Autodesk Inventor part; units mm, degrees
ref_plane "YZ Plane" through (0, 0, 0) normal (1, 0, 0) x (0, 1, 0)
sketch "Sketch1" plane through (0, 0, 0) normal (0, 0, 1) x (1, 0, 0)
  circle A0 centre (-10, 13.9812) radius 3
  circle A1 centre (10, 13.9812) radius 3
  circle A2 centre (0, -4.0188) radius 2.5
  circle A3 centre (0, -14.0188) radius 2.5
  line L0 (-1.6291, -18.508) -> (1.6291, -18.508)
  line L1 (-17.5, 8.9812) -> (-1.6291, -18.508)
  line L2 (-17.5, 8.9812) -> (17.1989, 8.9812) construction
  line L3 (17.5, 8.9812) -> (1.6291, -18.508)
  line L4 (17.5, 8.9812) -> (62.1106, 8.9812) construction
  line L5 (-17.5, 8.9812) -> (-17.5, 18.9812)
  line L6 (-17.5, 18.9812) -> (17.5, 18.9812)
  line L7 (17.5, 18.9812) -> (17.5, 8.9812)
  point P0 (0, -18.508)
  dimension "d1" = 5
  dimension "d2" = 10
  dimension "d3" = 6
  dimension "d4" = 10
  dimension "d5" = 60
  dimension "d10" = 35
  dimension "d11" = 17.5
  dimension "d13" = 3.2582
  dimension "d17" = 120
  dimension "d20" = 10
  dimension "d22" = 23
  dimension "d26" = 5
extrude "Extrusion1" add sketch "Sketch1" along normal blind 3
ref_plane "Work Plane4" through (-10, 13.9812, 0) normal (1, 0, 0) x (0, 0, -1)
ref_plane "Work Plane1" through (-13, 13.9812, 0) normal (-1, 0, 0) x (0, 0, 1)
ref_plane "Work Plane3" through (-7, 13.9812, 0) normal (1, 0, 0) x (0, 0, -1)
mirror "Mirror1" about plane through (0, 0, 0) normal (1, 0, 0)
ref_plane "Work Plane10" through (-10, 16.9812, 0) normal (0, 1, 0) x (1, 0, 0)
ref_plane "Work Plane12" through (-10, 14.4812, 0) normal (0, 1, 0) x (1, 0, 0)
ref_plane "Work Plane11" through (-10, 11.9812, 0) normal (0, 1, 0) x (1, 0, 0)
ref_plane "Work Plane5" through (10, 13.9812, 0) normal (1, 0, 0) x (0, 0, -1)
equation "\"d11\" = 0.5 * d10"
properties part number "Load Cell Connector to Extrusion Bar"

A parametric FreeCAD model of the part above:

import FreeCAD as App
import Part
import Sketcher
Q = App.Units.Quantity


def add_polygon(sketch, points):
    """Adds a closed chain of lines whose ends are joined by coincident constraints."""
    first, n = sketch.GeometryCount, len(points)
    for a, b in zip(points, points[1:] + points[:1]):
        sketch.addGeometry(Part.LineSegment(App.Vector(*a, 0), App.Vector(*b, 0)), False)
    for i in range(n):
        sketch.addConstraint(Sketcher.Constraint("Coincident", first + i, 2, first + (i + 1) % n, 1))

doc = App.newDocument("Part")
body = doc.addObject("PartDesign::Body", "Body")

sketch1 = doc.addObject("Sketcher::SketchObject", "Sketch")
body.addObject(sketch1)
sketch1.AttachmentSupport = (doc.XY_Plane, [""])
sketch1.MapMode = "FlatFace"
add_polygon(sketch1, [(-17.5, 8.9812), (-1.6291, -18.508), (1.6291, -18.508), (17.5, 8.9812), (17.5, 18.9812), (-17.5, 18.9812)])
sketch1.addGeometry(Part.Circle(App.Vector(0, -14.0188, 0), App.Vector(0, 0, 1), 2.5), False)
sketch1.addGeometry(Part.Circle(App.Vector(0, -4.0188, 0), App.Vector(0, 0, 1), 2.5), False)
sketch1.addGeometry(Part.Circle(App.Vector(-10, 13.9812, 0), App.Vector(0, 0, 1), 3), False)
sketch1.addGeometry(Part.Circle(App.Vector(10, 13.9812, 0), App.Vector(0, 0, 1), 3), False)
sketch1.addConstraint([
    Sketcher.Constraint("Horizontal", 1),
    Sketcher.Constraint("Vertical", 3),
    Sketcher.Constraint("Horizontal", 4),
    Sketcher.Constraint("Vertical", 5),
    Sketcher.Constraint("Equal", 6, 7),
    Sketcher.Constraint("Equal", 8, 9),
    Sketcher.Constraint("Symmetric", 8, 3, 9, 3, -2),
    Sketcher.Constraint("Symmetric", 2, 2, 5, 2, -2),
    Sketcher.Constraint("PointOnObject", 6, 3, -2),
    Sketcher.Constraint("PointOnObject", 7, 3, -2),
    Sketcher.Constraint("Equal", 0, 2),
    Sketcher.Constraint("Diameter", 6, 5.0),
    Sketcher.Constraint("Diameter", 8, 6.0),
    Sketcher.Constraint("DistanceX", 4, 2, 4, 1, 35.0),
    Sketcher.Constraint("DistanceY", 3, 1, 3, 2, 10.0),
    Sketcher.Constraint("Angle", 0, Q("-60 deg")),
    Sketcher.Constraint("DistanceX", 8, 3, -1, 1, 10.0),
    Sketcher.Constraint("DistanceY", 6, 3, 7, 3, 10.0),
    Sketcher.Constraint("DistanceY", 2, 2, 9, 3, 5.0),
    Sketcher.Constraint("DistanceY", 6, 3, 2, 2, 23.0),
    Sketcher.Constraint("DistanceX", 1, 1, 1, 2, 3.2582),
    Sketcher.Constraint("DistanceY", 0, 2, -1, 1, 18.508),
])
pad1 = doc.addObject("PartDesign::Pad", "Pad")
body.addObject(pad1)
pad1.Profile = sketch1
pad1.Length = 3
doc.recompute()

mirrored = doc.addObject("PartDesign::Mirrored", "Mirrored")
body.addObject(mirrored)
mirrored.TransformMode = "Transform body"
mirrored.MirrorPlane = (doc.YZ_Plane, [""])
body.Tip = mirrored

doc.recompute()
